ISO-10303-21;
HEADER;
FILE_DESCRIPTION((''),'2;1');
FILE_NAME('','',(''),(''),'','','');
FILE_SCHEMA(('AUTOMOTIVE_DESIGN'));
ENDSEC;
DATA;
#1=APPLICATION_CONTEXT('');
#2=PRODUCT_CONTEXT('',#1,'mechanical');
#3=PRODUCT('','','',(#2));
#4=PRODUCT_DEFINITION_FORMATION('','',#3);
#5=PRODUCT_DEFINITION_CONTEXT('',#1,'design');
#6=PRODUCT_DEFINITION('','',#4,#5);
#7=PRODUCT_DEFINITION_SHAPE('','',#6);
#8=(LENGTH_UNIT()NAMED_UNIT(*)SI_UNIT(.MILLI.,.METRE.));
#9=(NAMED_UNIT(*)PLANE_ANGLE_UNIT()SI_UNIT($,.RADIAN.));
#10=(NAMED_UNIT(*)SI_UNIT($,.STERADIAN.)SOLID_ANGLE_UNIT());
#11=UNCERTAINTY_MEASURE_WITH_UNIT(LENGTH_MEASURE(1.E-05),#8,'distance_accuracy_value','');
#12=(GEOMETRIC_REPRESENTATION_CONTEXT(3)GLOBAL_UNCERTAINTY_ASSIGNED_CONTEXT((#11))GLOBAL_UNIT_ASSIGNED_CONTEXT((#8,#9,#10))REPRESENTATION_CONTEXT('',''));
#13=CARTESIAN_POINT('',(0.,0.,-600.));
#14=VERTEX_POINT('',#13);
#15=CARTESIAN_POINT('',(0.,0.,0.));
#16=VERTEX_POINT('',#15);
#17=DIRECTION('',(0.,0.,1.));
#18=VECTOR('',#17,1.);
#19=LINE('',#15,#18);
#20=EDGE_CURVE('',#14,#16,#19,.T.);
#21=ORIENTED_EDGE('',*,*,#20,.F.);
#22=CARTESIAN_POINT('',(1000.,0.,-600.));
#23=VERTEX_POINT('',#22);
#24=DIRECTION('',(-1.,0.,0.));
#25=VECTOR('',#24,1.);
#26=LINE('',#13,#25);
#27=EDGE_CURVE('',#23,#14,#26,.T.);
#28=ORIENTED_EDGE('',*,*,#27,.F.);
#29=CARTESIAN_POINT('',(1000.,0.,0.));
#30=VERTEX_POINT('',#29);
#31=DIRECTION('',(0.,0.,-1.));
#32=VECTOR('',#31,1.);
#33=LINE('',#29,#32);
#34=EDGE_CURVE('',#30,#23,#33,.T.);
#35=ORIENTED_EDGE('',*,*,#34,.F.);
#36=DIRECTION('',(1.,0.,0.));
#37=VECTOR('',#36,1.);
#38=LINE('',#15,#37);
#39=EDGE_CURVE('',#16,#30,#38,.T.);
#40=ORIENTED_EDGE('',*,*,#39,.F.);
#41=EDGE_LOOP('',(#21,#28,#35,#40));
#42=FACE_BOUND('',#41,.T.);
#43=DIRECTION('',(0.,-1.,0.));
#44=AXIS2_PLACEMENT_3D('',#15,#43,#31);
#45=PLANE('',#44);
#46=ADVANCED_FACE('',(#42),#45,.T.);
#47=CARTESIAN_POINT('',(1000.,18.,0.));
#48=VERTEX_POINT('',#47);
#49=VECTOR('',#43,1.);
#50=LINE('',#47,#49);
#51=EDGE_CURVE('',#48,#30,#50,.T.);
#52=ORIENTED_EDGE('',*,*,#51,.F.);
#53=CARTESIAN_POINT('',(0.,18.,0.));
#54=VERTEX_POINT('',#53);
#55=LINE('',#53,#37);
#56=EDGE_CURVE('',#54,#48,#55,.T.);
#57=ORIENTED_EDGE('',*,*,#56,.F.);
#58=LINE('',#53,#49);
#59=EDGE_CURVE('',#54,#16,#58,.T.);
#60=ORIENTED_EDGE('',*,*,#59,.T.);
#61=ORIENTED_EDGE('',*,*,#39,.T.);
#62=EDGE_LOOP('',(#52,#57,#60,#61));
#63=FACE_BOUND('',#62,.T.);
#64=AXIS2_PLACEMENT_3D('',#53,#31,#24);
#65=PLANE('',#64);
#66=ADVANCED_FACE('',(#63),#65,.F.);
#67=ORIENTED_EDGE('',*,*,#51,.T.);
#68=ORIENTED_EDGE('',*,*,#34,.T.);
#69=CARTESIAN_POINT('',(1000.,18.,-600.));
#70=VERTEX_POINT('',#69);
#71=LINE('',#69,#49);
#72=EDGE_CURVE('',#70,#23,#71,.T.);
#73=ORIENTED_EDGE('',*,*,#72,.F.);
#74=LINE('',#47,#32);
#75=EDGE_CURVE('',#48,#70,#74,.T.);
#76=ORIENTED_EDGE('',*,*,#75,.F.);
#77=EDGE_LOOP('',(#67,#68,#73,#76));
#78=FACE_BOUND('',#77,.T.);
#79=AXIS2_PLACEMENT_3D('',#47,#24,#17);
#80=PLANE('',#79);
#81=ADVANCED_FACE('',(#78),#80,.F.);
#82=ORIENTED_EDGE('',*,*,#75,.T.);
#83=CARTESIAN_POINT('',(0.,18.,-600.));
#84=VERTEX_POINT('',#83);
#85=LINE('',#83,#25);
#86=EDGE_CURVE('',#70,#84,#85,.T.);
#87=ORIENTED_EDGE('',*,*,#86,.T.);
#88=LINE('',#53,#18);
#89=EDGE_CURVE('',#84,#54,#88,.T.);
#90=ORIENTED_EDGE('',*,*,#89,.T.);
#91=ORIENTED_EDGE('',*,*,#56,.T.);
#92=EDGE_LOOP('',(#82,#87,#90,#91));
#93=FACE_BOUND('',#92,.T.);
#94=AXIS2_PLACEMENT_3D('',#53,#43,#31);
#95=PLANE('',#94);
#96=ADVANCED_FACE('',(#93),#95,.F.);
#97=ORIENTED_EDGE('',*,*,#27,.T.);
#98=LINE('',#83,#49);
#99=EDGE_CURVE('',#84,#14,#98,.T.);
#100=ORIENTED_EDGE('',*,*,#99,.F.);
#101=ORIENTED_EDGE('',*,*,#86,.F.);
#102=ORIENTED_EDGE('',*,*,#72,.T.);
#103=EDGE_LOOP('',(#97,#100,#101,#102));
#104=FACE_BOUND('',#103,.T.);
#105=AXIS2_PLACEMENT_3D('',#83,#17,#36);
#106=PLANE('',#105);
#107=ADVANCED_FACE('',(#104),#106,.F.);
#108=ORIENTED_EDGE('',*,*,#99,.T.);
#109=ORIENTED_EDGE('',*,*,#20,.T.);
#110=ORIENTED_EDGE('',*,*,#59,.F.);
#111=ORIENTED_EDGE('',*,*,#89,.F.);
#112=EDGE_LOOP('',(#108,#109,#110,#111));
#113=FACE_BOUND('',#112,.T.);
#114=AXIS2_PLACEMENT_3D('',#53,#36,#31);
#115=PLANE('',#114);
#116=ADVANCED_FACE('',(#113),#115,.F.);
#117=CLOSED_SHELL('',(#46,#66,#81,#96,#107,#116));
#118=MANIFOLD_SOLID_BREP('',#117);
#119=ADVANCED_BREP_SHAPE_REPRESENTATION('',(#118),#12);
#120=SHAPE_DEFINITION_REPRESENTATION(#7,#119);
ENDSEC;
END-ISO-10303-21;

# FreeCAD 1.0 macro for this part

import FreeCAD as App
import Part
import Sketcher

doc = App.newDocument("Part")
body = doc.addObject("PartDesign::Body", "Body")

# Sketch on XZ plane
sketch1 = body.newObject("Sketcher::SketchObject", "Sketch")
sketch1.AttachmentSupport = (doc.getObject("XZ_Plane"), [""])
sketch1.MapMode = "FlatFace"
sketch1.addGeometry(Part.LineSegment(App.Vector(0, -600, 0), App.Vector(0, 0, 0)), False)
sketch1.addGeometry(Part.LineSegment(App.Vector(0, 0, 0), App.Vector(1000, 0, 0)), False)
sketch1.addGeometry(Part.LineSegment(App.Vector(1000, 0, 0), App.Vector(1000, -600, 0)), False)
sketch1.addGeometry(Part.LineSegment(App.Vector(1000, -600, 0), App.Vector(0, -600, 0)), False)
sketch1.addConstraint(Sketcher.Constraint("Coincident", 0, 2, 1, 1))
sketch1.addConstraint(Sketcher.Constraint("Coincident", 1, 2, 2, 1))
sketch1.addConstraint(Sketcher.Constraint("Coincident", 2, 2, 3, 1))
sketch1.addConstraint(Sketcher.Constraint("Coincident", 3, 2, 0, 1))
sketch1.addConstraint(Sketcher.Constraint("Vertical", 0))
sketch1.addConstraint(Sketcher.Constraint("Horizontal", 1))
sketch1.addConstraint(Sketcher.Constraint("Vertical", 2))
sketch1.addConstraint(Sketcher.Constraint("Horizontal", 3))
sketch1.addConstraint(Sketcher.Constraint("Coincident", 0, 2, -1, 1))
sketch1.addConstraint(Sketcher.Constraint("DistanceX", 1, 1, 1, 2, 1000.0))
sketch1.addConstraint(Sketcher.Constraint("DistanceY", 0, 1, 0, 2, 600.0))
pad1 = body.newObject("PartDesign::Pad", "Pad")
pad1.Profile = sketch1
pad1.Length = 18
pad1.Reversed = True

doc.recompute()
